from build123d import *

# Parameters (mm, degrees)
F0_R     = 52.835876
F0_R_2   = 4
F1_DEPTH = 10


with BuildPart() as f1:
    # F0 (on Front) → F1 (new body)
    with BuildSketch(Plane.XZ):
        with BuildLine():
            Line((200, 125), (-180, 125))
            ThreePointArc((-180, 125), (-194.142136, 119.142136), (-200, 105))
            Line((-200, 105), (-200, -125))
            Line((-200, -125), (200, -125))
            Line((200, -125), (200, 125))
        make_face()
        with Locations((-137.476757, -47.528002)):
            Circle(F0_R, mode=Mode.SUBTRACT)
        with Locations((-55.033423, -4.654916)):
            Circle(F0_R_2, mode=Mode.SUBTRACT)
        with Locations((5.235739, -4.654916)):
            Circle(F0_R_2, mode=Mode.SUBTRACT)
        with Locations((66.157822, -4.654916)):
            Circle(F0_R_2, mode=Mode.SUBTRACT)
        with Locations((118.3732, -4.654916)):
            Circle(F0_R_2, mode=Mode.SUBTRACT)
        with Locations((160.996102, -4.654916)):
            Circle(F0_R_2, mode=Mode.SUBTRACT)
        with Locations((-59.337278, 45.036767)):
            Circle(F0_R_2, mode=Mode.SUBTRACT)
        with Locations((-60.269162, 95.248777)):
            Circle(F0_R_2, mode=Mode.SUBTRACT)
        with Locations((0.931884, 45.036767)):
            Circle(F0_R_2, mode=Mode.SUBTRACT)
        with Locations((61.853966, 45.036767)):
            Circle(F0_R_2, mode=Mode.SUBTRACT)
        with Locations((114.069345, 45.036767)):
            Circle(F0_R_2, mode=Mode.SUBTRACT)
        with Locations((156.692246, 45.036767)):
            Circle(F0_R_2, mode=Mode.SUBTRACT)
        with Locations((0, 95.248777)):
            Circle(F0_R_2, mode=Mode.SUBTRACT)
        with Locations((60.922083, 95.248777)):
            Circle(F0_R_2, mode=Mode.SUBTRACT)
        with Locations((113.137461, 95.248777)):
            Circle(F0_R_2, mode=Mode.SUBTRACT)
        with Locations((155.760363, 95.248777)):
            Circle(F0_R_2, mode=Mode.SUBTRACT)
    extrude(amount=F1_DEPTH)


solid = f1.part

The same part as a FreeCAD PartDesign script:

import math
import FreeCAD as App
import Part
import Sketcher

V = App.Vector
Q = App.Units.Quantity

doc = App.newDocument("Part")
body = doc.addObject("PartDesign::Body", "Body")

# Sketch on XZ plane
sketch1 = doc.addObject("Sketcher::SketchObject", "Sketch")
body.addObject(sketch1)
sketch1.AttachmentSupport = (doc.XZ_Plane, [""])
sketch1.MapMode = "FlatFace"
sketch1.addGeometry([
    Part.LineSegment(V(200, 125, 0), V(-180, 125, 0)),  # 0
    Part.ArcOfCircle(Part.Circle(V(-180.000001, 105.000001, 0), V(0, 0, 1), 19.999999), math.radians(89.999996), math.radians(180.000004)),  # 1
    Part.LineSegment(V(-200, 105, 0), V(-200, -125, 0)),  # 2
    Part.LineSegment(V(-200, -125, 0), V(200, -125, 0)),  # 3
    Part.LineSegment(V(200, -125, 0), V(200, 125, 0)),  # 4
    Part.Circle(V(-137.476757, -47.528002, 0), V(0, 0, 1), 52.835876),  # 5
    Part.Circle(V(-55.033423, -4.654916, 0), V(0, 0, 1), 4),  # 6
    Part.Circle(V(5.235739, -4.654916, 0), V(0, 0, 1), 4),  # 7
    Part.Circle(V(66.157822, -4.654916, 0), V(0, 0, 1), 4),  # 8
    Part.Circle(V(118.3732, -4.654916, 0), V(0, 0, 1), 4),  # 9
    Part.Circle(V(160.996102, -4.654916, 0), V(0, 0, 1), 4),  # 10
    Part.Circle(V(-59.337278, 45.036767, 0), V(0, 0, 1), 4),  # 11
    Part.Circle(V(-60.269162, 95.248777, 0), V(0, 0, 1), 4),  # 12
    Part.Circle(V(0.931884, 45.036767, 0), V(0, 0, 1), 4),  # 13
    Part.Circle(V(61.853966, 45.036767, 0), V(0, 0, 1), 4),  # 14
    Part.Circle(V(114.069345, 45.036767, 0), V(0, 0, 1), 4),  # 15
    Part.Circle(V(156.692246, 45.036767, 0), V(0, 0, 1), 4),  # 16
    Part.Circle(V(0, 95.248777, 0), V(0, 0, 1), 4),  # 17
    Part.Circle(V(60.922083, 95.248777, 0), V(0, 0, 1), 4),  # 18
    Part.Circle(V(113.137461, 95.248777, 0), V(0, 0, 1), 4),  # 19
    Part.Circle(V(155.760363, 95.248777, 0), V(0, 0, 1), 4),  # 20
], False)
sketch1.addConstraint([
    Sketcher.Constraint("Tangent", 0, 2, 1, 1),
    Sketcher.Constraint("Tangent", 1, 2, 2, 1),
    Sketcher.Constraint("Coincident", 2, 2, 3, 1),
    Sketcher.Constraint("Coincident", 3, 2, 4, 1),
    Sketcher.Constraint("Coincident", 4, 2, 0, 1),
    Sketcher.Constraint("Horizontal", 0),
    Sketcher.Constraint("Vertical", 2),
    Sketcher.Constraint("Horizontal", 3),
    Sketcher.Constraint("Vertical", 4),
    Sketcher.Constraint("Equal", 6, 7),
    Sketcher.Constraint("Equal", 7, 8),
    Sketcher.Constraint("Equal", 8, 9),
    Sketcher.Constraint("Equal", 9, 10),
    Sketcher.Constraint("Equal", 10, 11),
    Sketcher.Constraint("Equal", 11, 12),
    Sketcher.Constraint("Equal", 12, 13),
    Sketcher.Constraint("Equal", 13, 14),
    Sketcher.Constraint("Equal", 14, 15),
    Sketcher.Constraint("Equal", 15, 16),
    Sketcher.Constraint("Equal", 16, 17),
    Sketcher.Constraint("Equal", 17, 18),
    Sketcher.Constraint("Equal", 18, 19),
    Sketcher.Constraint("Equal", 19, 20),
    Sketcher.Constraint("Symmetric", 2, 2, 4, 2, -1, 1),
    Sketcher.Constraint("PointOnObject", 17, 3, -2),
    Sketcher.Constraint("Horizontal", 6, 3, 7, 3),
    Sketcher.Constraint("Horizontal", 7, 3, 8, 3),
    Sketcher.Constraint("Horizontal", 8, 3, 9, 3),
    Sketcher.Constraint("Horizontal", 9, 3, 10, 3),
    Sketcher.Constraint("Horizontal", 11, 3, 13, 3),
    Sketcher.Constraint("Horizontal", 13, 3, 14, 3),
    Sketcher.Constraint("Horizontal", 14, 3, 15, 3),
    Sketcher.Constraint("Horizontal", 15, 3, 16, 3),
    Sketcher.Constraint("Horizontal", 12, 3, 17, 3),
    Sketcher.Constraint("Horizontal", 17, 3, 18, 3),
    Sketcher.Constraint("Horizontal", 18, 3, 19, 3),
    Sketcher.Constraint("Horizontal", 19, 3, 20, 3),
    Sketcher.Constraint("Diameter", 6, Q("8 mm")),
    Sketcher.Constraint("Radius", 1, Q("19.999999 mm")),
    Sketcher.Constraint("DistanceX", 0, 2, 0, 1, Q("380 mm")),
    Sketcher.Constraint("DistanceY", 2, 2, 2, 1, Q("230 mm")),
    Sketcher.Constraint("Diameter", 5, Q("105.671752 mm")),
    Sketcher.Constraint("DistanceY", 2, 2, 5, 3, Q("77.471998 mm")),
    Sketcher.Constraint("DistanceX", -1, 1, 9, 3, Q("118.3732 mm")),
    Sketcher.Constraint("DistanceX", -1, 1, 10, 3, Q("160.996102 mm")),
    Sketcher.Constraint("DistanceX", 11, 3, 8, 3, Q("125.4951 mm")),
    Sketcher.Constraint("DistanceX", 12, 3, 7, 3, Q("65.504901 mm")),
    Sketcher.Constraint("DistanceX", 15, 3, 16, 3, Q("42.622901 mm")),
    Sketcher.Constraint("DistanceX", 13, 3, 18, 3, Q("59.990199 mm")),
    Sketcher.Constraint("DistanceX", -1, 1, 7, 3, Q("5.235739 mm")),
    Sketcher.Constraint("DistanceX", -1, 1, 8, 3, Q("66.157822 mm")),
    Sketcher.Constraint("DistanceX", -1, 1, 19, 3, Q("113.137461 mm")),
    Sketcher.Constraint("DistanceX", 1, 3, 6, 3, Q("124.966578 mm")),
    Sketcher.Constraint("DistanceX", 5, 3, 8, 3, Q("203.634579 mm")),
    Sketcher.Constraint("DistanceY", 5, 3, 11, 3, Q("92.564769 mm")),
    Sketcher.Constraint("DistanceY", 11, 3, 12, 3, Q("50.21201 mm")),
    Sketcher.Constraint("DistanceX", 11, 3, 13, 3, Q("60.269162 mm")),
    Sketcher.Constraint("DistanceX", 14, 3, 15, 3, Q("52.215379 mm")),
    Sketcher.Constraint("DistanceX", 13, 3, 15, 3, Q("113.137461 mm")),
    Sketcher.Constraint("DistanceX", 15, 3, 20, 3, Q("41.691018 mm")),
    Sketcher.Constraint("DistanceY", 6, 3, -1, 1, Q("4.654916 mm")),
])
pad1 = doc.addObject("PartDesign::Pad", "Pad")
body.addObject(pad1)
pad1.Profile = sketch1
pad1.Length = 10

doc.recompute()
